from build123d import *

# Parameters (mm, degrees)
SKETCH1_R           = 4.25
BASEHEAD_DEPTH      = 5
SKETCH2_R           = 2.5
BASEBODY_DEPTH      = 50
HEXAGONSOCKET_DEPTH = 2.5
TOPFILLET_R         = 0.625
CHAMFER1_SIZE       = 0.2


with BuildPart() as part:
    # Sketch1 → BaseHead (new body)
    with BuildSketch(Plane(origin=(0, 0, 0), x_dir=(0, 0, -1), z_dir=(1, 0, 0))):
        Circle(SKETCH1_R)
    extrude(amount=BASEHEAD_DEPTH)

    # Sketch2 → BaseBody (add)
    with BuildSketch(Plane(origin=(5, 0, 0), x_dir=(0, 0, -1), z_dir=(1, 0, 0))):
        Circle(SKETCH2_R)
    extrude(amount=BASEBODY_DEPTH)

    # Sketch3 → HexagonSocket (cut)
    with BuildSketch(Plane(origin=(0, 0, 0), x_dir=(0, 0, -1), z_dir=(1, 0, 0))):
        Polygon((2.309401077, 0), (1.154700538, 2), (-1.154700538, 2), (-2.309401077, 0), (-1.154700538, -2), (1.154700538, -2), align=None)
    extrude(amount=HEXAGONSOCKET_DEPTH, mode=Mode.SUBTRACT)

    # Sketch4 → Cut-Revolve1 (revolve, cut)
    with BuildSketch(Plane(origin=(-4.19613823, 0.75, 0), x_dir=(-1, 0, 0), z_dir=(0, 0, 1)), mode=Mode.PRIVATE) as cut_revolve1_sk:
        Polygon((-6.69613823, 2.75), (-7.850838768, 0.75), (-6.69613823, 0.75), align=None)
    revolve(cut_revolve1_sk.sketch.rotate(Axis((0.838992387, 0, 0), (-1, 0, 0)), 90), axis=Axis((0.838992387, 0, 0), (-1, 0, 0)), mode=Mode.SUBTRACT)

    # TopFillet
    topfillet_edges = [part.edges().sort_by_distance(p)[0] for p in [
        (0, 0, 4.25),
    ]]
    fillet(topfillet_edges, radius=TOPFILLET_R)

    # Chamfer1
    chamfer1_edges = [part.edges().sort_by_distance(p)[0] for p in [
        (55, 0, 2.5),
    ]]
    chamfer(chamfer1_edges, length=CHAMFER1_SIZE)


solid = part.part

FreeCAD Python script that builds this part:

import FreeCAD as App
import Part
import Sketcher

V = App.Vector
Q = App.Units.Quantity


def edges_at(feature, points):
    """Names of the edges that pass closest to the given points."""
    edges = feature.Shape.Edges
    near = lambda p: min(range(len(edges)), key=lambda i: edges[i].distToShape(Part.Vertex(*p))[0])
    return sorted({f"Edge{near(p) + 1}" for p in points})


def add_polygon(sketch, points):
    """Adds a closed chain of lines whose ends are joined by coincident constraints."""
    first, n = sketch.GeometryCount, len(points)
    for a, b in zip(points, points[1:] + points[:1]):
        sketch.addGeometry(Part.LineSegment(App.Vector(*a, 0), App.Vector(*b, 0)), False)
    for i in range(n):
        sketch.addConstraint(Sketcher.Constraint("Coincident", first + i, 2, first + (i + 1) % n, 1))

doc = App.newDocument("Part")
body = doc.addObject("PartDesign::Body", "Body")

# Sketch on YZ plane
sketch1 = doc.addObject("Sketcher::SketchObject", "Sketch")
body.addObject(sketch1)
sketch1.AttachmentSupport = (doc.YZ_Plane, [""])
sketch1.MapMode = "FlatFace"
sketch1.addGeometry(Part.Circle(V(0, 0, 0), V(0, 0, 1), 4.25), False)
sketch1.addConstraint([
    Sketcher.Constraint("Coincident", 0, 3, -1, 1),
    Sketcher.Constraint("Diameter", 0, 8.5),
])
pad1 = doc.addObject("PartDesign::Pad", "Pad")
body.addObject(pad1)
pad1.Profile = sketch1
pad1.Length = 5

# Sketch on YZ plane
sketch2 = doc.addObject("Sketcher::SketchObject", "Sketch001")
body.addObject(sketch2)
sketch2.AttachmentSupport = (doc.YZ_Plane, [""])
sketch2.MapMode = "FlatFace"
sketch2.AttachmentOffset = App.Placement(V(0, 0, 5), App.Rotation())
sketch2.addGeometry(Part.Circle(V(0, 0, 0), V(0, 0, 1), 2.5), False)
sketch2.addConstraint([
    Sketcher.Constraint("Coincident", 0, 3, -1, 1),
    Sketcher.Constraint("Diameter", 0, 5.0),
])
pad2 = doc.addObject("PartDesign::Pad", "Pad001")
body.addObject(pad2)
pad2.Profile = sketch2
pad2.Length = 50

# Sketch on YZ plane
sketch3 = doc.addObject("Sketcher::SketchObject", "Sketch002")
body.addObject(sketch3)
sketch3.AttachmentSupport = (doc.YZ_Plane, [""])
sketch3.MapMode = "FlatFace"
add_polygon(sketch3, [(0, -2.309401), (2, -1.154701), (2, 1.154701), (0, 2.309401), (-2, 1.154701), (-2, -1.154701)])  # lines 0-5
sketch3.addConstraint([
    Sketcher.Constraint("Vertical", 1),
    Sketcher.Constraint("Vertical", 4),
    Sketcher.Constraint("Symmetric", 0, 2, 3, 2, -1, 1),
    Sketcher.Constraint("Symmetric", 2, 2, 5, 2, -1, 1),
    Sketcher.Constraint("PointOnObject", 2, 2, -2),
    Sketcher.Constraint("Parallel", 2, 5),
    Sketcher.Constraint("Horizontal", 1, 2, 3, 2),
    Sketcher.Constraint("Angle", 0, Q("30 deg")),
    Sketcher.Constraint("DistanceX", -1, 1, 0, 2, 2.0),
    Sketcher.Constraint("DistanceY", 1, 1, 1, 2, 2.309401),
])
pocket1 = doc.addObject("PartDesign::Pocket", "Pocket")
body.addObject(pocket1)
pocket1.Profile = sketch3
pocket1.Length = 2.5
pocket1.Reversed = True

# Sketch on XY plane
sketch4 = doc.addObject("Sketcher::SketchObject", "Sketch003")
body.addObject(sketch4)
sketch4.AttachmentSupport = (doc.XY_Plane, [""])
sketch4.MapMode = "FlatFace"
add_polygon(sketch4, [(2.5, -2), (3.654701, 0), (2.5, 0)])  # lines 0-2
sketch4.addConstraint([
    Sketcher.Constraint("Horizontal", 1),
    Sketcher.Constraint("Vertical", 2),
    Sketcher.Constraint("PointOnObject", 0, 2, -1),
    Sketcher.Constraint("DistanceY", 2, 2, 2, 1, 2.0),
    Sketcher.Constraint("Angle", 0, Q("60 deg")),
    Sketcher.Constraint("DistanceX", -1, 1, 1, 2, 2.5),
])
groove = doc.addObject("PartDesign::Groove", "Groove")
body.addObject(groove)
groove.Profile = sketch4
groove.ReferenceAxis = (sketch4, ["H_Axis"])
groove.Angle = 360
doc.recompute()

fillet = doc.addObject("PartDesign::Fillet", "Fillet")
body.addObject(fillet)
fillet.Base = (groove, edges_at(groove, [(0, 0, 4.25)]))
fillet.Radius = 0.625
doc.recompute()

chamfer = doc.addObject("PartDesign::Chamfer", "Chamfer")
body.addObject(chamfer)
chamfer.Base = (fillet, edges_at(fillet, [(55, 0, 2.5)]))
chamfer.Size = 0.2

doc.recompute()
